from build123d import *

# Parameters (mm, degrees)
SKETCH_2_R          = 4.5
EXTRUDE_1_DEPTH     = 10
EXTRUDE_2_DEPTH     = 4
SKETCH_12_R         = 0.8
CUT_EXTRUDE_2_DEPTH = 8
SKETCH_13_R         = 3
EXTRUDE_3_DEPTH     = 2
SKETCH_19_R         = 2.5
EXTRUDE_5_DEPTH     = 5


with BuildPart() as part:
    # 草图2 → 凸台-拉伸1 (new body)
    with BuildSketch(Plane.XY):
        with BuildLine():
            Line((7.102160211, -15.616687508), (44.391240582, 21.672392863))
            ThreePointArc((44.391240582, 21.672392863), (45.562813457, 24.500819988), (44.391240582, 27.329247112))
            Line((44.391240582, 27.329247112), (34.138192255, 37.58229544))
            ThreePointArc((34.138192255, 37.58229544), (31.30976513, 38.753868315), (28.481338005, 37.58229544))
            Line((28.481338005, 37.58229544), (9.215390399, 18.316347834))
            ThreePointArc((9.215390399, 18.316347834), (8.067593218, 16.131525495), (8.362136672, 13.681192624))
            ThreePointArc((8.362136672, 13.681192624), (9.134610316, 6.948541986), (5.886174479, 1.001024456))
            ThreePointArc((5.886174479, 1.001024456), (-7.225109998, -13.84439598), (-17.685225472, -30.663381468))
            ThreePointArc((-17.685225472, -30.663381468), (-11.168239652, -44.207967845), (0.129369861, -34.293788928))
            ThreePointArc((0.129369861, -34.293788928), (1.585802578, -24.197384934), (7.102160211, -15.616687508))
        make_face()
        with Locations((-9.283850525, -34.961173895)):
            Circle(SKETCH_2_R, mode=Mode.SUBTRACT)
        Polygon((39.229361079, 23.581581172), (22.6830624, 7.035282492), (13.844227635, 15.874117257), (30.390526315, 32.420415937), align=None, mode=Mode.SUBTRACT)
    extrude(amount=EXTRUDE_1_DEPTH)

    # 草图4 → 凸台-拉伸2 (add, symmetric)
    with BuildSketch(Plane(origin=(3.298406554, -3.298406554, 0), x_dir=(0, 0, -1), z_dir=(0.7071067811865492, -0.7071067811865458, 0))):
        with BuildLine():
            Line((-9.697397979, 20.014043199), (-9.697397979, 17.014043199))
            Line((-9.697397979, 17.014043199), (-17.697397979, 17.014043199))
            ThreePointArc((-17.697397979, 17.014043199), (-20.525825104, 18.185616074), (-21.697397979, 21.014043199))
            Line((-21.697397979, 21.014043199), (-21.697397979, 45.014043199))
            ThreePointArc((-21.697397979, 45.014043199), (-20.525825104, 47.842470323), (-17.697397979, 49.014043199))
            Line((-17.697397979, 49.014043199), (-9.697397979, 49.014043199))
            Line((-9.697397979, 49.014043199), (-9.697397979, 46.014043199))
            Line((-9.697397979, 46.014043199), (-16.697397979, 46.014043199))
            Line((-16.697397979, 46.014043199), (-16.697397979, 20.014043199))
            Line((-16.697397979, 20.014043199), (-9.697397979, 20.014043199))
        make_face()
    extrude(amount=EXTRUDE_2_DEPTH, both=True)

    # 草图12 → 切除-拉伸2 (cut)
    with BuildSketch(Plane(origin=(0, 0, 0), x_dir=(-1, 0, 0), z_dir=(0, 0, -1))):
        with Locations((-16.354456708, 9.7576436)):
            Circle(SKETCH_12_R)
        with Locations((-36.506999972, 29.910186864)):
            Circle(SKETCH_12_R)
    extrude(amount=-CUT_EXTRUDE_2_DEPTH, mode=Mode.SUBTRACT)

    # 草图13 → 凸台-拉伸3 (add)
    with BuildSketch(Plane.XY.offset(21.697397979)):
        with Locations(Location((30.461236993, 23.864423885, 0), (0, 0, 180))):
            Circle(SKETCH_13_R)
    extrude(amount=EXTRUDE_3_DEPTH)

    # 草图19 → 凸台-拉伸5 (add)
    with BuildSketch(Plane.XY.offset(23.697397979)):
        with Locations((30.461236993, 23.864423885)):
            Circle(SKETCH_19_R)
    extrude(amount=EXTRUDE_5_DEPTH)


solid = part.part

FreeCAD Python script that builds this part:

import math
import FreeCAD as App
import Part
import Sketcher

doc = App.newDocument("Part")
body = doc.addObject("PartDesign::Body", "Body")

# Sketch on XY plane
sketch1 = body.newObject("Sketcher::SketchObject", "Sketch")
sketch1.AttachmentSupport = (doc.getObject("XY_Plane"), [""])
sketch1.MapMode = "FlatFace"
sketch1.addGeometry([
    Part.LineSegment(App.Vector(7.1, -15.6, 0), App.Vector(44.4, 21.7, 0)),  # 0
    Part.ArcOfCircle(Part.Circle(App.Vector(41.6, 24.5, 0), App.Vector(0, 0, 1), 4), math.radians(-45), math.radians(45)),  # 1
    Part.LineSegment(App.Vector(44.4, 27.3, 0), App.Vector(34.1, 37.6, 0)),  # 2
    Part.ArcOfCircle(Part.Circle(App.Vector(31.3, 34.8, 0), App.Vector(0, 0, 1), 4), math.radians(45), math.radians(135)),  # 3
    Part.LineSegment(App.Vector(28.5, 37.6, 0), App.Vector(9.2, 18.3, 0)),  # 4
    Part.ArcOfCircle(Part.Circle(App.Vector(12.2, 15.4, 0), App.Vector(0, 0, 1), 4.2), math.radians(135), math.radians(204)),  # 5
    Part.ArcOfCircle(Part.Circle(App.Vector(-1.9, 9.1, 0), App.Vector(0, 0, 1), 11.2), math.radians(-46), math.radians(24)),  # 6
    Part.ArcOfCircle(Part.Circle(App.Vector(88, -84.7, 0), App.Vector(0, 0, 1), 118.7), math.radians(133.76), math.radians(152.91)),  # 7
    Part.ArcOfCircle(Part.Circle(App.Vector(-9.3, -35, 0), App.Vector(0, 0, 1), 9.4), math.radians(153), math.radians(364)),  # 8
    Part.ArcOfCircle(Part.Circle(App.Vector(24.1, -32.6, 0), App.Vector(0, 0, 1), 24), math.radians(135), math.radians(184)),  # 9
    Part.Circle(App.Vector(-9.3, -35, 0), App.Vector(0, 0, 1), 4.5),  # 10
    Part.LineSegment(App.Vector(30.4, 32.4, 0), App.Vector(39.2, 23.6, 0)),  # 11
    Part.LineSegment(App.Vector(39.2, 23.6, 0), App.Vector(22.7, 7, 0)),  # 12
    Part.LineSegment(App.Vector(22.7, 7, 0), App.Vector(13.8, 15.9, 0)),  # 13
    Part.LineSegment(App.Vector(13.8, 15.9, 0), App.Vector(30.4, 32.4, 0)),  # 14
], False)
sketch1.addConstraint([
    Sketcher.Constraint("Tangent", 0, 2, 1, 1),
    Sketcher.Constraint("Tangent", 1, 2, 2, 1),
    Sketcher.Constraint("Tangent", 2, 2, 3, 1),
    Sketcher.Constraint("Tangent", 3, 2, 4, 1),
    Sketcher.Constraint("Tangent", 4, 2, 5, 1),
    Sketcher.Constraint("Tangent", 5, 2, 6, 2),
    Sketcher.Constraint("Tangent", 6, 1, 7, 1),
    Sketcher.Constraint("Tangent", 7, 2, 8, 1),
    Sketcher.Constraint("Tangent", 8, 2, 9, 2),
    Sketcher.Constraint("Tangent", 9, 1, 0, 1),
    Sketcher.Constraint("Coincident", 11, 2, 12, 1),
    Sketcher.Constraint("Coincident", 12, 2, 13, 1),
    Sketcher.Constraint("Coincident", 13, 2, 14, 1),
    Sketcher.Constraint("Coincident", 14, 2, 11, 1),
    Sketcher.Constraint("Coincident", 10, 3, 8, 3),
    Sketcher.Constraint("Equal", 1, 3),
    Sketcher.Constraint("Perpendicular", 0, 2),
    Sketcher.Constraint("Perpendicular", 2, 4),
    Sketcher.Constraint("Perpendicular", 4, 11),
    Sketcher.Constraint("Perpendicular", 11, 12),
    Sketcher.Constraint("Perpendicular", 12, 13),
    Sketcher.Constraint("Perpendicular", 13, 14),
    Sketcher.Constraint("Horizontal", 2, 2, 3, 2),
    Sketcher.Constraint("Diameter", 10, 9.0),
    Sketcher.Constraint("Radius", 1, 4.0),
    Sketcher.Constraint("Distance", 2, 14.5),
    Sketcher.Constraint("Distance", 11, 12.5),
    Sketcher.Constraint("Distance", 12, 23.4),
    Sketcher.Constraint("Radius", 7, 118.693179),
    Sketcher.Constraint("Radius", 8, 9.436849),
    Sketcher.Constraint("Radius", 5, 4.153137),
    Sketcher.Constraint("Radius", 6, 11.209916),
    Sketcher.Constraint("Radius", 9, 24.011867),
    Sketcher.Constraint("DistanceX", -1, 1, 5, 3, 12.152102),
    Sketcher.Constraint("DistanceX", 9, 3, 1, 3, 17.481699),
    Sketcher.Constraint("DistanceY", 6, 3, 1, 2, 18.2324),
    Sketcher.Constraint("DistanceY", 6, 3, 4, 2, 9.2195),
    Sketcher.Constraint("DistanceX", 6, 3, 6, 1, 7.753701),
    Sketcher.Constraint("DistanceY", -1, 1, 1, 3, 24.50082),
    Sketcher.Constraint("DistanceX", -1, 1, 11, 2, 39.229361),
    Sketcher.Constraint("DistanceY", -1, 1, 11, 2, 23.581581),
])
pad1 = body.newObject("PartDesign::Pad", "Pad")
pad1.Profile = sketch1
pad1.Length = 10

# Sketch on an angled plane
sketch2 = body.newObject("Sketcher::SketchObject", "Sketch001")
sketch2.Placement = App.Placement(App.Vector(3.298407, -3.298407, 0), App.Rotation(App.Vector(0, 0, -1), App.Vector(0.707106781, 0.707106781, 0), App.Vector(0.707106781, -0.707106781, 0), "ZXY"))
sketch2.addGeometry([
    Part.LineSegment(App.Vector(-9.7, 17, 0), App.Vector(-9.7, 20, 0)),  # 0
    Part.LineSegment(App.Vector(-9.7, 20, 0), App.Vector(-16.7, 20, 0)),  # 1
    Part.LineSegment(App.Vector(-16.7, 20, 0), App.Vector(-16.7, 46, 0)),  # 2
    Part.LineSegment(App.Vector(-16.7, 46, 0), App.Vector(-9.7, 46, 0)),  # 3
    Part.LineSegment(App.Vector(-9.7, 46, 0), App.Vector(-9.7, 49, 0)),  # 4
    Part.LineSegment(App.Vector(-9.7, 49, 0), App.Vector(-17.7, 49, 0)),  # 5
    Part.ArcOfCircle(Part.Circle(App.Vector(-17.7, 45, 0), App.Vector(0, 0, 1), 4), math.radians(90), math.radians(180)),  # 6
    Part.LineSegment(App.Vector(-21.7, 45, 0), App.Vector(-21.7, 21, 0)),  # 7
    Part.ArcOfCircle(Part.Circle(App.Vector(-17.7, 21, 0), App.Vector(0, 0, 1), 4), math.radians(180), math.radians(270)),  # 8
    Part.LineSegment(App.Vector(-17.7, 17, 0), App.Vector(-9.7, 17, 0)),  # 9
], False)
sketch2.addConstraint([
    Sketcher.Constraint("Coincident", 0, 2, 1, 1),
    Sketcher.Constraint("Coincident", 1, 2, 2, 1),
    Sketcher.Constraint("Coincident", 2, 2, 3, 1),
    Sketcher.Constraint("Coincident", 3, 2, 4, 1),
    Sketcher.Constraint("Coincident", 4, 2, 5, 1),
    Sketcher.Constraint("Tangent", 5, 2, 6, 1),
    Sketcher.Constraint("Tangent", 6, 2, 7, 1),
    Sketcher.Constraint("Tangent", 7, 2, 8, 1),
    Sketcher.Constraint("Tangent", 8, 2, 9, 1),
    Sketcher.Constraint("Coincident", 9, 2, 0, 1),
    Sketcher.Constraint("Vertical", 0),
    Sketcher.Constraint("Horizontal", 1),
    Sketcher.Constraint("Vertical", 2),
    Sketcher.Constraint("Horizontal", 3),
    Sketcher.Constraint("Vertical", 4),
    Sketcher.Constraint("Horizontal", 5),
    Sketcher.Constraint("Vertical", 7),
    Sketcher.Constraint("Horizontal", 9),
    Sketcher.Constraint("Equal", 6, 8),
    Sketcher.Constraint("Vertical", 0, 2, 3, 2),
    Sketcher.Constraint("Equal", 0, 4),
    Sketcher.Constraint("Radius", 6, 4.0),
    Sketcher.Constraint("DistanceX", 1, 2, 1, 1, 7.0),
    Sketcher.Constraint("DistanceX", 5, 2, 5, 1, 8.0),
    Sketcher.Constraint("DistanceY", 0, 1, 0, 2, 3.0),
    Sketcher.Constraint("DistanceY", 2, 1, 2, 2, 26.0),
    Sketcher.Constraint("DistanceX", 6, 3, -1, 1, 17.697398),
    Sketcher.Constraint("DistanceY", -1, 1, 6, 3, 45.014043),
])
pad2 = body.newObject("PartDesign::Pad", "Pad001")
pad2.Profile = sketch2
pad2.Length = 8
pad2.Midplane = True

# Sketch on XY plane
sketch3 = body.newObject("Sketcher::SketchObject", "Sketch002")
sketch3.AttachmentSupport = (doc.getObject("XY_Plane"), [""])
sketch3.MapMode = "FlatFace"
sketch3.addGeometry([
    Part.Circle(App.Vector(16.4, 9.8, 0), App.Vector(0, 0, 1), 0.8),
    Part.Circle(App.Vector(36.5, 29.9, 0), App.Vector(0, 0, 1), 0.8),
], False)
sketch3.addConstraint([
    Sketcher.Constraint("Equal", 0, 1),
    Sketcher.Constraint("Diameter", 0, 1.6),
    Sketcher.Constraint("DistanceX", -1, 1, 1, 3, 36.507),
    Sketcher.Constraint("DistanceX", -1, 1, 0, 3, 16.354457),
    Sketcher.Constraint("DistanceY", -1, 1, 0, 3, 9.757644),
    Sketcher.Constraint("DistanceY", -1, 1, 1, 3, 29.910187),
])
pocket1 = body.newObject("PartDesign::Pocket", "Pocket")
pocket1.Profile = sketch3
pocket1.Length = 8
pocket1.Reversed = True

# Sketch on XY plane
sketch4 = body.newObject("Sketcher::SketchObject", "Sketch003")
sketch4.AttachmentSupport = (doc.getObject("XY_Plane"), [""])
sketch4.MapMode = "FlatFace"
sketch4.AttachmentOffset = App.Placement(App.Vector(0, 0, 21.697398), App.Rotation())
sketch4.addGeometry(Part.Circle(App.Vector(30.5, 23.9, 0), App.Vector(0, 0, 1), 3), False)
sketch4.addConstraint([
    Sketcher.Constraint("Diameter", 0, 6.0),
    Sketcher.Constraint("DistanceX", -1, 1, 0, 3, 30.461237),
    Sketcher.Constraint("DistanceY", -1, 1, 0, 3, 23.864424),
])
pad3 = body.newObject("PartDesign::Pad", "Pad002")
pad3.Profile = sketch4
pad3.Length = 2

# Sketch on XY plane
sketch5 = body.newObject("Sketcher::SketchObject", "Sketch004")
sketch5.AttachmentSupport = (doc.getObject("XY_Plane"), [""])
sketch5.MapMode = "FlatFace"
sketch5.AttachmentOffset = App.Placement(App.Vector(0, 0, 23.697398), App.Rotation())
sketch5.addGeometry(Part.Circle(App.Vector(30.5, 23.9, 0), App.Vector(0, 0, 1), 2.5), False)
sketch5.addConstraint([
    Sketcher.Constraint("Diameter", 0, 5.0),
    Sketcher.Constraint("DistanceX", -1, 1, 0, 3, 30.461237),
    Sketcher.Constraint("DistanceY", -1, 1, 0, 3, 23.864424),
])
pad4 = body.newObject("PartDesign::Pad", "Pad003")
pad4.Profile = sketch5
pad4.Length = 5

doc.recompute()
